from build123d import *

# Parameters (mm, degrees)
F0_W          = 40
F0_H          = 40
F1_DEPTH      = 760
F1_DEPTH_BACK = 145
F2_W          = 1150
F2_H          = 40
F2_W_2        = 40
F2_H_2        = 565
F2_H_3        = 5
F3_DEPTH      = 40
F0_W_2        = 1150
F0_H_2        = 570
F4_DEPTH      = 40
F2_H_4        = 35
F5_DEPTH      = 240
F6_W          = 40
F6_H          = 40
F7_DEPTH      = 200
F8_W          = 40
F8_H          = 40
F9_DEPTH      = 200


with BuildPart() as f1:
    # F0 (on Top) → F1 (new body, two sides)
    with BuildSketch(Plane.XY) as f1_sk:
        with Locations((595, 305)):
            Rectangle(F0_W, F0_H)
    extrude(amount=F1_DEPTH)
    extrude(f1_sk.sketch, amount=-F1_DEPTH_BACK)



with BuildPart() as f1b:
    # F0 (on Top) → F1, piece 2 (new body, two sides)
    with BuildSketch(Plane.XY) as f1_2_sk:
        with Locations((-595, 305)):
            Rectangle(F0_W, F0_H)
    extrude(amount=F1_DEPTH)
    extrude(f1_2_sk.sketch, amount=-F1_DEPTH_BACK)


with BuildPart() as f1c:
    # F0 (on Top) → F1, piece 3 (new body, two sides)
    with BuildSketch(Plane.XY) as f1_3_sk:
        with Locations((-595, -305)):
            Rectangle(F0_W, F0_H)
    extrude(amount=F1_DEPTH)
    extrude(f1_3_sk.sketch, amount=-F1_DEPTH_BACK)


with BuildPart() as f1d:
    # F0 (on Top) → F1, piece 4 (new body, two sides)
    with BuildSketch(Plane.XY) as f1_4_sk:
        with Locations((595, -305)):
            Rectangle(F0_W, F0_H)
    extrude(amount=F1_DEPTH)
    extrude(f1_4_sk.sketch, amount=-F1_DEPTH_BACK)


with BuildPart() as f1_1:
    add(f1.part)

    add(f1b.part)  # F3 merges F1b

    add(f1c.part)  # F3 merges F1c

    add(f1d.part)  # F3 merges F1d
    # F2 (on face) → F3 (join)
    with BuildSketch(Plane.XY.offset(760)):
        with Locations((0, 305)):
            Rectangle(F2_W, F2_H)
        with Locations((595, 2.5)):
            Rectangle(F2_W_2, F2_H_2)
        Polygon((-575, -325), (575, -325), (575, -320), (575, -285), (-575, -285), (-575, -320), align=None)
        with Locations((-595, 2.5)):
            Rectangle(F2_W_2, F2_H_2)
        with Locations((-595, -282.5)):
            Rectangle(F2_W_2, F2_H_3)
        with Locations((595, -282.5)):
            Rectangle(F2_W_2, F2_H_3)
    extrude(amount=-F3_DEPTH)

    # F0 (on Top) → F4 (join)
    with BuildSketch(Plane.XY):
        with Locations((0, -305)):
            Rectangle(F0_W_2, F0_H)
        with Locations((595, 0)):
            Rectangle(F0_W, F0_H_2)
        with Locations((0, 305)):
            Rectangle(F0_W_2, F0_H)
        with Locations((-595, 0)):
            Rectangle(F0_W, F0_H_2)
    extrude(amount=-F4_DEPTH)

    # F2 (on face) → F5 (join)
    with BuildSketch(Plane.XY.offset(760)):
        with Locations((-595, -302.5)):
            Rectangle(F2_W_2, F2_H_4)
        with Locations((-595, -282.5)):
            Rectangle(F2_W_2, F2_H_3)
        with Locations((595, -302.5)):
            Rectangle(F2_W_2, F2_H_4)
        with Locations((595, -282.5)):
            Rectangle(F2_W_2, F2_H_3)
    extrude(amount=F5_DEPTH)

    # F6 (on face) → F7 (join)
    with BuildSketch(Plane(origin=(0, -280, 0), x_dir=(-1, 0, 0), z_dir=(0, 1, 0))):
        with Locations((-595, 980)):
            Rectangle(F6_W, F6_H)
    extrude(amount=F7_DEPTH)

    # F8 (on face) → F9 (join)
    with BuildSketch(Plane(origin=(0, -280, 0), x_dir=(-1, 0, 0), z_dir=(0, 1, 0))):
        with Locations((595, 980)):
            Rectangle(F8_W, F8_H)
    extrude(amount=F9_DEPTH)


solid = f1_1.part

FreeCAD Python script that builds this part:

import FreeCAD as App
import Part
import Sketcher

V = App.Vector
Q = App.Units.Quantity

doc = App.newDocument("Part")
body = doc.addObject("PartDesign::Body", "Body")

sketch1 = body.newObject("Sketcher::SketchObject", "Sketch")
sketch1.AttachmentSupport = (doc.getObject("XY_Plane"), [""])
sketch1.MapMode = "FlatFace"
sketch1.addGeometry([
    Part.LineSegment(V(575, 325, 0), V(575, 285, 0)),
    Part.LineSegment(V(575, 285, 0), V(615, 285, 0)),
    Part.LineSegment(V(615, 285, 0), V(615, 325, 0)),
    Part.LineSegment(V(615, 325, 0), V(575, 325, 0)),
], False)
sketch1.addConstraint([
    Sketcher.Constraint("Coincident", 0, 2, 1, 1),
    Sketcher.Constraint("Coincident", 1, 2, 2, 1),
    Sketcher.Constraint("Coincident", 2, 2, 3, 1),
    Sketcher.Constraint("Coincident", 3, 2, 0, 1),
    Sketcher.Constraint("Vertical", 0),
    Sketcher.Constraint("Horizontal", 1),
    Sketcher.Constraint("Vertical", 2),
    Sketcher.Constraint("Horizontal", 3),
    Sketcher.Constraint("Equal", 3, 0),
    Sketcher.Constraint("DistanceX", 1, 1, 1, 2, Q("40 mm")),
    Sketcher.Constraint("DistanceX", -1, 1, 0, 2, Q("575 mm")),
    Sketcher.Constraint("DistanceY", -1, 1, 0, 2, Q("285 mm")),
])
pad1 = body.newObject("PartDesign::Pad", "Pad")
pad1.Profile = sketch1
pad1.Type = "TwoLengths"
pad1.Length = 760
pad1.Length2 = 145
body2 = doc.addObject("PartDesign::Body", "Body001")

sketch2 = body2.newObject("Sketcher::SketchObject", "Sketch001")
sketch2.AttachmentSupport = (doc.getObject("XY_Plane001"), [""])
sketch2.MapMode = "FlatFace"
sketch2.addGeometry([
    Part.LineSegment(V(-615, 325, 0), V(-615, 285, 0)),
    Part.LineSegment(V(-615, 285, 0), V(-575, 285, 0)),
    Part.LineSegment(V(-575, 285, 0), V(-575, 325, 0)),
    Part.LineSegment(V(-575, 325, 0), V(-615, 325, 0)),
], False)
sketch2.addConstraint([
    Sketcher.Constraint("Coincident", 0, 2, 1, 1),
    Sketcher.Constraint("Coincident", 1, 2, 2, 1),
    Sketcher.Constraint("Coincident", 2, 2, 3, 1),
    Sketcher.Constraint("Coincident", 3, 2, 0, 1),
    Sketcher.Constraint("Vertical", 0),
    Sketcher.Constraint("Horizontal", 1),
    Sketcher.Constraint("Vertical", 2),
    Sketcher.Constraint("Horizontal", 3),
    Sketcher.Constraint("Equal", 3, 0),
    Sketcher.Constraint("DistanceX", 1, 1, 1, 2, Q("40 mm")),
    Sketcher.Constraint("DistanceX", 0, 2, -1, 1, Q("615 mm")),
    Sketcher.Constraint("DistanceY", -1, 1, 0, 2, Q("285 mm")),
])
pad2 = body2.newObject("PartDesign::Pad", "Pad001")
pad2.Profile = sketch2
pad2.Type = "TwoLengths"
pad2.Length = 760
pad2.Length2 = 145
body3 = doc.addObject("PartDesign::Body", "Body002")

sketch3 = body3.newObject("Sketcher::SketchObject", "Sketch002")
sketch3.AttachmentSupport = (doc.getObject("XY_Plane002"), [""])
sketch3.MapMode = "FlatFace"
sketch3.addGeometry([
    Part.LineSegment(V(-615, -285, 0), V(-615, -325, 0)),
    Part.LineSegment(V(-615, -325, 0), V(-575, -325, 0)),
    Part.LineSegment(V(-575, -325, 0), V(-575, -285, 0)),
    Part.LineSegment(V(-575, -285, 0), V(-615, -285, 0)),
], False)
sketch3.addConstraint([
    Sketcher.Constraint("Coincident", 0, 2, 1, 1),
    Sketcher.Constraint("Coincident", 1, 2, 2, 1),
    Sketcher.Constraint("Coincident", 2, 2, 3, 1),
    Sketcher.Constraint("Coincident", 3, 2, 0, 1),
    Sketcher.Constraint("Vertical", 0),
    Sketcher.Constraint("Horizontal", 1),
    Sketcher.Constraint("Vertical", 2),
    Sketcher.Constraint("Horizontal", 3),
    Sketcher.Constraint("Equal", 3, 0),
    Sketcher.Constraint("DistanceX", 1, 1, 1, 2, Q("40 mm")),
    Sketcher.Constraint("DistanceX", 0, 2, -1, 1, Q("615 mm")),
    Sketcher.Constraint("DistanceY", 0, 2, -1, 1, Q("325 mm")),
])
pad3 = body3.newObject("PartDesign::Pad", "Pad002")
pad3.Profile = sketch3
pad3.Type = "TwoLengths"
pad3.Length = 760
pad3.Length2 = 145
body4 = doc.addObject("PartDesign::Body", "Body003")

sketch4 = body4.newObject("Sketcher::SketchObject", "Sketch003")
sketch4.AttachmentSupport = (doc.getObject("XY_Plane003"), [""])
sketch4.MapMode = "FlatFace"
sketch4.addGeometry([
    Part.LineSegment(V(575, -285, 0), V(575, -325, 0)),
    Part.LineSegment(V(575, -325, 0), V(615, -325, 0)),
    Part.LineSegment(V(615, -325, 0), V(615, -285, 0)),
    Part.LineSegment(V(615, -285, 0), V(575, -285, 0)),
], False)
sketch4.addConstraint([
    Sketcher.Constraint("Coincident", 0, 2, 1, 1),
    Sketcher.Constraint("Coincident", 1, 2, 2, 1),
    Sketcher.Constraint("Coincident", 2, 2, 3, 1),
    Sketcher.Constraint("Coincident", 3, 2, 0, 1),
    Sketcher.Constraint("Vertical", 0),
    Sketcher.Constraint("Horizontal", 1),
    Sketcher.Constraint("Vertical", 2),
    Sketcher.Constraint("Horizontal", 3),
    Sketcher.Constraint("Equal", 3, 0),
    Sketcher.Constraint("DistanceX", 1, 1, 1, 2, Q("40 mm")),
    Sketcher.Constraint("DistanceX", -1, 1, 0, 2, Q("575 mm")),
    Sketcher.Constraint("DistanceY", 0, 2, -1, 1, Q("325 mm")),
])
pad4 = body4.newObject("PartDesign::Pad", "Pad003")
pad4.Profile = sketch4
pad4.Type = "TwoLengths"
pad4.Length = 760
pad4.Length2 = 145
body.AllowCompound = True
doc.recompute()

boolean = body.newObject("PartDesign::Boolean", "Boolean")
boolean.Type = "Fuse"
boolean.addObjects([body2])
doc.recompute()

boolean2 = body.newObject("PartDesign::Boolean", "Boolean001")
boolean2.Type = "Fuse"
boolean2.addObjects([body3])
doc.recompute()

boolean3 = body.newObject("PartDesign::Boolean", "Boolean002")
boolean3.Type = "Fuse"
boolean3.addObjects([body4])

sketch5 = body.newObject("Sketcher::SketchObject", "Sketch004")
sketch5.AttachmentSupport = (doc.getObject("XY_Plane"), [""])
sketch5.MapMode = "FlatFace"
sketch5.AttachmentOffset = App.Placement(V(0, 0, 760), App.Rotation())
sketch5.addGeometry([
    Part.LineSegment(V(-575, 325, 0), V(-575, 285, 0)),
    Part.LineSegment(V(-575, 285, 0), V(575, 285, 0)),
    Part.LineSegment(V(575, 285, 0), V(575, 325, 0)),
    Part.LineSegment(V(575, 325, 0), V(-575, 325, 0)),
    Part.LineSegment(V(575, 285, 0), V(575, -285, 0)),
    Part.LineSegment(V(575, -285, 0), V(615, -285, 0)),
    Part.LineSegment(V(615, -285, 0), V(615, 285, 0)),
    Part.LineSegment(V(615, 285, 0), V(575, 285, 0)),
    Part.LineSegment(V(-575, -325, 0), V(575, -325, 0)),
    Part.LineSegment(V(575, -325, 0), V(575, -285, 0)),
    Part.LineSegment(V(575, -285, 0), V(-575, -285, 0)),
    Part.LineSegment(V(-575, -285, 0), V(-575, -325, 0)),
    Part.LineSegment(V(-615, 285, 0), V(-615, -285, 0)),
    Part.LineSegment(V(-615, -285, 0), V(-575, -285, 0)),
    Part.LineSegment(V(-575, -285, 0), V(-575, 285, 0)),
    Part.LineSegment(V(-575, 285, 0), V(-615, 285, 0)),
], False)
sketch5.addConstraint([
    Sketcher.Constraint("Coincident", 0, 2, 1, 1),
    Sketcher.Constraint("Coincident", 1, 2, 2, 1),
    Sketcher.Constraint("Coincident", 2, 2, 3, 1),
    Sketcher.Constraint("Coincident", 3, 2, 0, 1),
    Sketcher.Constraint("Coincident", 4, 2, 5, 1),
    Sketcher.Constraint("Coincident", 5, 2, 6, 1),
    Sketcher.Constraint("Coincident", 6, 2, 7, 1),
    Sketcher.Constraint("Coincident", 7, 2, 4, 1),
    Sketcher.Constraint("Coincident", 8, 2, 9, 1),
    Sketcher.Constraint("Coincident", 9, 2, 10, 1),
    Sketcher.Constraint("Coincident", 10, 2, 11, 1),
    Sketcher.Constraint("Coincident", 11, 2, 8, 1),
    Sketcher.Constraint("Coincident", 12, 2, 13, 1),
    Sketcher.Constraint("Coincident", 13, 2, 14, 1),
    Sketcher.Constraint("Coincident", 14, 2, 15, 1),
    Sketcher.Constraint("Coincident", 15, 2, 12, 1),
    Sketcher.Constraint("Vertical", 0),
    Sketcher.Constraint("Horizontal", 1),
    Sketcher.Constraint("Vertical", 2),
    Sketcher.Constraint("Horizontal", 3),
    Sketcher.Constraint("Vertical", 4),
    Sketcher.Constraint("Horizontal", 5),
    Sketcher.Constraint("Vertical", 6),
    Sketcher.Constraint("Horizontal", 7),
    Sketcher.Constraint("Horizontal", 8),
    Sketcher.Constraint("Vertical", 9),
    Sketcher.Constraint("Horizontal", 10),
    Sketcher.Constraint("Vertical", 11),
    Sketcher.Constraint("Vertical", 12),
    Sketcher.Constraint("Horizontal", 13),
    Sketcher.Constraint("Vertical", 14),
    Sketcher.Constraint("Horizontal", 15),
    Sketcher.Constraint("Coincident", 7, 2, 1, 2),
    Sketcher.Constraint("Coincident", 9, 2, 4, 2),
    Sketcher.Constraint("Coincident", 13, 2, 10, 2),
    Sketcher.Constraint("Coincident", 14, 2, 0, 2),
    Sketcher.Constraint("Symmetric", 0, 2, 4, 2, -1, 1),
    Sketcher.Constraint("Equal", 7, 13),
    Sketcher.Constraint("Equal", 15, 0),
    Sketcher.Constraint("Equal", 2, 9),
    Sketcher.Constraint("DistanceX", 1, 1, 1, 2, Q("1150 mm")),
    Sketcher.Constraint("DistanceX", 5, 1, 5, 2, Q("40 mm")),
    Sketcher.Constraint("DistanceY", 4, 2, 4, 1, Q("570 mm")),
])
pad5 = body.newObject("PartDesign::Pad", "Pad004")
pad5.Profile = sketch5
pad5.Length = 40
pad5.Reversed = True

sketch6 = body.newObject("Sketcher::SketchObject", "Sketch005")
sketch6.AttachmentSupport = (doc.getObject("XY_Plane"), [""])
sketch6.MapMode = "FlatFace"
sketch6.addGeometry([
    Part.LineSegment(V(-575, -285, 0), V(-575, -325, 0)),
    Part.LineSegment(V(-575, -325, 0), V(575, -325, 0)),
    Part.LineSegment(V(575, -325, 0), V(575, -285, 0)),
    Part.LineSegment(V(575, -285, 0), V(-575, -285, 0)),
    Part.LineSegment(V(575, 285, 0), V(575, -285, 0)),
    Part.LineSegment(V(575, -285, 0), V(615, -285, 0)),
    Part.LineSegment(V(615, -285, 0), V(615, 285, 0)),
    Part.LineSegment(V(615, 285, 0), V(575, 285, 0)),
    Part.LineSegment(V(-575, 325, 0), V(-575, 285, 0)),
    Part.LineSegment(V(-575, 285, 0), V(575, 285, 0)),
    Part.LineSegment(V(575, 285, 0), V(575, 325, 0)),
    Part.LineSegment(V(575, 325, 0), V(-575, 325, 0)),
    Part.LineSegment(V(-615, 285, 0), V(-615, -285, 0)),
    Part.LineSegment(V(-615, -285, 0), V(-575, -285, 0)),
    Part.LineSegment(V(-575, -285, 0), V(-575, 285, 0)),
    Part.LineSegment(V(-575, 285, 0), V(-615, 285, 0)),
], False)
sketch6.addConstraint([
    Sketcher.Constraint("Coincident", 0, 2, 1, 1),
    Sketcher.Constraint("Coincident", 1, 2, 2, 1),
    Sketcher.Constraint("Coincident", 2, 2, 3, 1),
    Sketcher.Constraint("Coincident", 3, 2, 0, 1),
    Sketcher.Constraint("Coincident", 4, 2, 5, 1),
    Sketcher.Constraint("Coincident", 5, 2, 6, 1),
    Sketcher.Constraint("Coincident", 6, 2, 7, 1),
    Sketcher.Constraint("Coincident", 7, 2, 4, 1),
    Sketcher.Constraint("Coincident", 8, 2, 9, 1),
    Sketcher.Constraint("Coincident", 9, 2, 10, 1),
    Sketcher.Constraint("Coincident", 10, 2, 11, 1),
    Sketcher.Constraint("Coincident", 11, 2, 8, 1),
    Sketcher.Constraint("Coincident", 12, 2, 13, 1),
    Sketcher.Constraint("Coincident", 13, 2, 14, 1),
    Sketcher.Constraint("Coincident", 14, 2, 15, 1),
    Sketcher.Constraint("Coincident", 15, 2, 12, 1),
    Sketcher.Constraint("Vertical", 0),
    Sketcher.Constraint("Horizontal", 1),
    Sketcher.Constraint("Vertical", 2),
    Sketcher.Constraint("Horizontal", 3),
    Sketcher.Constraint("Vertical", 4),
    Sketcher.Constraint("Horizontal", 5),
    Sketcher.Constraint("Vertical", 6),
    Sketcher.Constraint("Horizontal", 7),
    Sketcher.Constraint("Vertical", 8),
    Sketcher.Constraint("Horizontal", 9),
    Sketcher.Constraint("Vertical", 10),
    Sketcher.Constraint("Horizontal", 11),
    Sketcher.Constraint("Vertical", 12),
    Sketcher.Constraint("Horizontal", 13),
    Sketcher.Constraint("Vertical", 14),
    Sketcher.Constraint("Horizontal", 15),
    Sketcher.Constraint("Coincident", 4, 2, 2, 2),
    Sketcher.Constraint("Coincident", 9, 2, 7, 2),
    Sketcher.Constraint("Coincident", 13, 2, 3, 2),
    Sketcher.Constraint("Coincident", 14, 2, 8, 2),
    Sketcher.Constraint("Symmetric", 3, 2, 7, 2, -1, 1),
    Sketcher.Constraint("Equal", 7, 13),
    Sketcher.Constraint("Equal", 15, 0),
    Sketcher.Constraint("Equal", 2, 8),
    Sketcher.Constraint("DistanceX", 1, 1, 1, 2, Q("1150 mm")),
    Sketcher.Constraint("DistanceX", 5, 1, 5, 2, Q("40 mm")),
    Sketcher.Constraint("DistanceY", 4, 2, 4, 1, Q("570 mm")),
])
pad6 = body.newObject("PartDesign::Pad", "Pad005")
pad6.Profile = sketch6
pad6.Length = 40
pad6.Reversed = True

sketch7 = body.newObject("Sketcher::SketchObject", "Sketch006")
sketch7.AttachmentSupport = (doc.getObject("XY_Plane"), [""])
sketch7.MapMode = "FlatFace"
sketch7.AttachmentOffset = App.Placement(V(0, 0, 760), App.Rotation())
sketch7.addGeometry([
    Part.LineSegment(V(-615, -320, 0), V(-575, -320, 0)),
    Part.LineSegment(V(-575, -320, 0), V(-575, -280, 0)),
    Part.LineSegment(V(-575, -280, 0), V(-615, -280, 0)),
    Part.LineSegment(V(-615, -280, 0), V(-615, -320, 0)),
    Part.LineSegment(V(575, -320, 0), V(615, -320, 0)),
    Part.LineSegment(V(615, -320, 0), V(615, -280, 0)),
    Part.LineSegment(V(615, -280, 0), V(575, -280, 0)),
    Part.LineSegment(V(575, -280, 0), V(575, -320, 0)),
], False)
sketch7.addConstraint([
    Sketcher.Constraint("Coincident", 0, 2, 1, 1),
    Sketcher.Constraint("Coincident", 1, 2, 2, 1),
    Sketcher.Constraint("Coincident", 2, 2, 3, 1),
    Sketcher.Constraint("Coincident", 3, 2, 0, 1),
    Sketcher.Constraint("Coincident", 4, 2, 5, 1),
    Sketcher.Constraint("Coincident", 5, 2, 6, 1),
    Sketcher.Constraint("Coincident", 6, 2, 7, 1),
    Sketcher.Constraint("Coincident", 7, 2, 4, 1),
    Sketcher.Constraint("Horizontal", 0),
    Sketcher.Constraint("Vertical", 1),
    Sketcher.Constraint("Horizontal", 2),
    Sketcher.Constraint("Vertical", 3),
    Sketcher.Constraint("Horizontal", 4),
    Sketcher.Constraint("Vertical", 5),
    Sketcher.Constraint("Horizontal", 6),
    Sketcher.Constraint("Vertical", 7),
    Sketcher.Constraint("Symmetric", 3, 2, 4, 2, -2),
    Sketcher.Constraint("Symmetric", 1, 2, 6, 2, -2),
    Sketcher.Constraint("Equal", 6, 1),
    Sketcher.Constraint("DistanceX", 0, 1, 0, 2, Q("40 mm")),
    Sketcher.Constraint("DistanceX", 0, 2, -1, 1, Q("575 mm")),
    Sketcher.Constraint("DistanceY", 0, 2, -1, 1, Q("320 mm")),
])
pad7 = body.newObject("PartDesign::Pad", "Pad006")
pad7.Profile = sketch7
pad7.Length = 240

sketch8 = body.newObject("Sketcher::SketchObject", "Sketch007")
sketch8.AttachmentSupport = (doc.getObject("XZ_Plane"), [""])
sketch8.MapMode = "FlatFace"
sketch8.AttachmentOffset = App.Placement(V(0, 0, 280), App.Rotation())
sketch8.addGeometry([
    Part.LineSegment(V(615, 1000, 0), V(615, 960, 0)),
    Part.LineSegment(V(615, 960, 0), V(575, 960, 0)),
    Part.LineSegment(V(575, 960, 0), V(575, 1000, 0)),
    Part.LineSegment(V(575, 1000, 0), V(615, 1000, 0)),
], False)
sketch8.addConstraint([
    Sketcher.Constraint("Coincident", 0, 2, 1, 1),
    Sketcher.Constraint("Coincident", 1, 2, 2, 1),
    Sketcher.Constraint("Coincident", 2, 2, 3, 1),
    Sketcher.Constraint("Coincident", 3, 2, 0, 1),
    Sketcher.Constraint("Vertical", 0),
    Sketcher.Constraint("Horizontal", 1),
    Sketcher.Constraint("Vertical", 2),
    Sketcher.Constraint("Horizontal", 3),
    Sketcher.Constraint("Equal", 3, 0),
    Sketcher.Constraint("DistanceX", 1, 2, 1, 1, Q("40 mm")),
    Sketcher.Constraint("DistanceX", -1, 1, 0, 2, Q("615 mm")),
    Sketcher.Constraint("DistanceY", -1, 1, 0, 2, Q("960 mm")),
])
pad8 = body.newObject("PartDesign::Pad", "Pad007")
pad8.Profile = sketch8
pad8.Length = 200
pad8.Reversed = True

sketch9 = body.newObject("Sketcher::SketchObject", "Sketch008")
sketch9.AttachmentSupport = (doc.getObject("XZ_Plane"), [""])
sketch9.MapMode = "FlatFace"
sketch9.AttachmentOffset = App.Placement(V(0, 0, 280), App.Rotation())
sketch9.addGeometry([
    Part.LineSegment(V(-575, 1000, 0), V(-575, 960, 0)),
    Part.LineSegment(V(-575, 960, 0), V(-615, 960, 0)),
    Part.LineSegment(V(-615, 960, 0), V(-615, 1000, 0)),
    Part.LineSegment(V(-615, 1000, 0), V(-575, 1000, 0)),
], False)
sketch9.addConstraint([
    Sketcher.Constraint("Coincident", 0, 2, 1, 1),
    Sketcher.Constraint("Coincident", 1, 2, 2, 1),
    Sketcher.Constraint("Coincident", 2, 2, 3, 1),
    Sketcher.Constraint("Coincident", 3, 2, 0, 1),
    Sketcher.Constraint("Vertical", 0),
    Sketcher.Constraint("Horizontal", 1),
    Sketcher.Constraint("Vertical", 2),
    Sketcher.Constraint("Horizontal", 3),
    Sketcher.Constraint("Equal", 3, 0),
    Sketcher.Constraint("DistanceX", 1, 2, 1, 1, Q("40 mm")),
    Sketcher.Constraint("DistanceX", 0, 2, -1, 1, Q("575 mm")),
    Sketcher.Constraint("DistanceY", -1, 1, 0, 2, Q("960 mm")),
])
pad9 = body.newObject("PartDesign::Pad", "Pad008")
pad9.Profile = sketch9
pad9.Length = 200
pad9.Reversed = True

doc.recompute()
